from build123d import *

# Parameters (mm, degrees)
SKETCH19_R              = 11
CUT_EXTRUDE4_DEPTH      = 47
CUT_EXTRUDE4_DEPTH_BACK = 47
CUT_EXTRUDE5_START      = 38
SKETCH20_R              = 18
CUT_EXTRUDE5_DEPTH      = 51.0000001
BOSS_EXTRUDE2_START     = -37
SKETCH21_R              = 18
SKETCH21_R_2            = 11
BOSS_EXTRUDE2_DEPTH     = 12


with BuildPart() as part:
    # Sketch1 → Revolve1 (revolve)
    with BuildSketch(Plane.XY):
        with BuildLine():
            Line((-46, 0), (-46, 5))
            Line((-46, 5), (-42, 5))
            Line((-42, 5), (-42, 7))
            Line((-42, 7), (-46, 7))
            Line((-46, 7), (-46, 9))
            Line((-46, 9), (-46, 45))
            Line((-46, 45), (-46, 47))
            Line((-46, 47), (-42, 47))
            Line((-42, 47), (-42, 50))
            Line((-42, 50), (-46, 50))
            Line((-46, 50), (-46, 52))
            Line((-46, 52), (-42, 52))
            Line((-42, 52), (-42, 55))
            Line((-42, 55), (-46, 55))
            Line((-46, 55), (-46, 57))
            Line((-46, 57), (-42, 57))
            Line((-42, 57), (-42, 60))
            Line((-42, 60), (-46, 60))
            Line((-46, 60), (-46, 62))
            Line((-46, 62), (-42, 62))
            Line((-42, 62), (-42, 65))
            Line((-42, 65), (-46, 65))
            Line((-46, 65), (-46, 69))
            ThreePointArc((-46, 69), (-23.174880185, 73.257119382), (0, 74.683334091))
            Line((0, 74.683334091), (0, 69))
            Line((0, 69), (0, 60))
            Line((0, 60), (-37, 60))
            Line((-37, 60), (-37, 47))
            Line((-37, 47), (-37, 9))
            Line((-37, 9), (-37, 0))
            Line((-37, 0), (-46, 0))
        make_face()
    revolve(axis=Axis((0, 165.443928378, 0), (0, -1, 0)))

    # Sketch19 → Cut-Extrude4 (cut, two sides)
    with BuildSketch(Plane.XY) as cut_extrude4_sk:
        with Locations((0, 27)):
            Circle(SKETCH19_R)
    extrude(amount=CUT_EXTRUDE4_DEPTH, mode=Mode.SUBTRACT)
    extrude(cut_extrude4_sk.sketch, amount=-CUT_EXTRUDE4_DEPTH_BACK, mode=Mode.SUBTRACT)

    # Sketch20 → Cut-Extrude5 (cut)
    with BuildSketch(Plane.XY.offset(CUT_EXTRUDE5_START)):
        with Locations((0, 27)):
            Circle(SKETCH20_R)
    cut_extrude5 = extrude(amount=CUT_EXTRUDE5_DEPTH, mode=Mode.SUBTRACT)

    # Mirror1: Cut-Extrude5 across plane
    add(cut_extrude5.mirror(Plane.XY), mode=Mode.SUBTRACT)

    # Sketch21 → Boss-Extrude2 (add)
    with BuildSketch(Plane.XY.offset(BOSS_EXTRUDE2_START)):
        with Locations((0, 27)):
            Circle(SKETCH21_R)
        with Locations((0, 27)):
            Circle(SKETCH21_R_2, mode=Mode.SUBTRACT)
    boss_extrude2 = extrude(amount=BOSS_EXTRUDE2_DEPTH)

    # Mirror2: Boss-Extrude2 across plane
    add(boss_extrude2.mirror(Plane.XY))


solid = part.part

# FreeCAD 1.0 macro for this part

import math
import FreeCAD as App
import Part
import Sketcher
from FreeCAD import Vector

doc = App.newDocument("Part")
body = doc.addObject("PartDesign::Body", "Body")

# Sketch on XY plane
sketch1 = doc.addObject("Sketcher::SketchObject", "Sketch")
body.addObject(sketch1)
sketch1.AttachmentSupport = (doc.XY_Plane, [""])
sketch1.MapMode = "FlatFace"
sketch1.addGeometry(Part.LineSegment(Vector(-46, 5, 0), Vector(-46, 0, 0)), False)
sketch1.addGeometry(Part.LineSegment(Vector(-46, 0, 0), Vector(-37, 0, 0)), False)
sketch1.addGeometry(Part.LineSegment(Vector(-37, 0, 0), Vector(-37, 60, 0)), False)
sketch1.addGeometry(Part.LineSegment(Vector(-37, 60, 0), Vector(0, 60, 0)), False)
sketch1.addGeometry(Part.LineSegment(Vector(0, 60, 0), Vector(0, 74.7, 0)), False)
sketch1.addGeometry(Part.ArcOfCircle(Part.Circle(Vector(0, -114.3, 0), Vector(0, 0, 1), 189), math.radians(90), math.radians(104.09)), False)
sketch1.addGeometry(Part.LineSegment(Vector(-46, 69, 0), Vector(-46, 65, 0)), False)
sketch1.addGeometry(Part.LineSegment(Vector(-46, 65, 0), Vector(-42, 65, 0)), False)
sketch1.addGeometry(Part.LineSegment(Vector(-42, 65, 0), Vector(-42, 62, 0)), False)
sketch1.addGeometry(Part.LineSegment(Vector(-42, 62, 0), Vector(-46, 62, 0)), False)
sketch1.addGeometry(Part.LineSegment(Vector(-46, 62, 0), Vector(-46, 60, 0)), False)
sketch1.addGeometry(Part.LineSegment(Vector(-46, 60, 0), Vector(-42, 60, 0)), False)
sketch1.addGeometry(Part.LineSegment(Vector(-42, 60, 0), Vector(-42, 57, 0)), False)
sketch1.addGeometry(Part.LineSegment(Vector(-42, 57, 0), Vector(-46, 57, 0)), False)
sketch1.addGeometry(Part.LineSegment(Vector(-46, 57, 0), Vector(-46, 55, 0)), False)
sketch1.addGeometry(Part.LineSegment(Vector(-46, 55, 0), Vector(-42, 55, 0)), False)
sketch1.addGeometry(Part.LineSegment(Vector(-42, 55, 0), Vector(-42, 52, 0)), False)
sketch1.addGeometry(Part.LineSegment(Vector(-42, 52, 0), Vector(-46, 52, 0)), False)
sketch1.addGeometry(Part.LineSegment(Vector(-46, 52, 0), Vector(-46, 50, 0)), False)
sketch1.addGeometry(Part.LineSegment(Vector(-46, 50, 0), Vector(-42, 50, 0)), False)
sketch1.addGeometry(Part.LineSegment(Vector(-42, 50, 0), Vector(-42, 47, 0)), False)
sketch1.addGeometry(Part.LineSegment(Vector(-42, 47, 0), Vector(-46, 47, 0)), False)
sketch1.addGeometry(Part.LineSegment(Vector(-46, 47, 0), Vector(-46, 7, 0)), False)
sketch1.addGeometry(Part.LineSegment(Vector(-46, 7, 0), Vector(-42, 7, 0)), False)
sketch1.addGeometry(Part.LineSegment(Vector(-42, 7, 0), Vector(-42, 5, 0)), False)
sketch1.addGeometry(Part.LineSegment(Vector(-42, 5, 0), Vector(-46, 5, 0)), False)
sketch1.addConstraint(Sketcher.Constraint("Coincident", 0, 2, 1, 1))
sketch1.addConstraint(Sketcher.Constraint("Coincident", 1, 2, 2, 1))
sketch1.addConstraint(Sketcher.Constraint("Coincident", 2, 2, 3, 1))
sketch1.addConstraint(Sketcher.Constraint("Coincident", 3, 2, 4, 1))
sketch1.addConstraint(Sketcher.Constraint("Coincident", 4, 2, 5, 1))
sketch1.addConstraint(Sketcher.Constraint("Coincident", 5, 2, 6, 1))
sketch1.addConstraint(Sketcher.Constraint("Coincident", 6, 2, 7, 1))
sketch1.addConstraint(Sketcher.Constraint("Coincident", 7, 2, 8, 1))
sketch1.addConstraint(Sketcher.Constraint("Coincident", 8, 2, 9, 1))
sketch1.addConstraint(Sketcher.Constraint("Coincident", 9, 2, 10, 1))
sketch1.addConstraint(Sketcher.Constraint("Coincident", 10, 2, 11, 1))
sketch1.addConstraint(Sketcher.Constraint("Coincident", 11, 2, 12, 1))
sketch1.addConstraint(Sketcher.Constraint("Coincident", 12, 2, 13, 1))
sketch1.addConstraint(Sketcher.Constraint("Coincident", 13, 2, 14, 1))
sketch1.addConstraint(Sketcher.Constraint("Coincident", 14, 2, 15, 1))
sketch1.addConstraint(Sketcher.Constraint("Coincident", 15, 2, 16, 1))
sketch1.addConstraint(Sketcher.Constraint("Coincident", 16, 2, 17, 1))
sketch1.addConstraint(Sketcher.Constraint("Coincident", 17, 2, 18, 1))
sketch1.addConstraint(Sketcher.Constraint("Coincident", 18, 2, 19, 1))
sketch1.addConstraint(Sketcher.Constraint("Coincident", 19, 2, 20, 1))
sketch1.addConstraint(Sketcher.Constraint("Coincident", 20, 2, 21, 1))
sketch1.addConstraint(Sketcher.Constraint("Coincident", 21, 2, 22, 1))
sketch1.addConstraint(Sketcher.Constraint("Coincident", 22, 2, 23, 1))
sketch1.addConstraint(Sketcher.Constraint("Coincident", 23, 2, 24, 1))
sketch1.addConstraint(Sketcher.Constraint("Coincident", 24, 2, 25, 1))
sketch1.addConstraint(Sketcher.Constraint("Coincident", 25, 2, 0, 1))
sketch1.addConstraint(Sketcher.Constraint("Vertical", 0))
sketch1.addConstraint(Sketcher.Constraint("Horizontal", 1))
sketch1.addConstraint(Sketcher.Constraint("Vertical", 2))
sketch1.addConstraint(Sketcher.Constraint("Horizontal", 3))
sketch1.addConstraint(Sketcher.Constraint("Vertical", 4))
sketch1.addConstraint(Sketcher.Constraint("Vertical", 6))
sketch1.addConstraint(Sketcher.Constraint("Horizontal", 7))
sketch1.addConstraint(Sketcher.Constraint("Vertical", 8))
sketch1.addConstraint(Sketcher.Constraint("Horizontal", 9))
sketch1.addConstraint(Sketcher.Constraint("Vertical", 10))
sketch1.addConstraint(Sketcher.Constraint("Horizontal", 11))
sketch1.addConstraint(Sketcher.Constraint("Vertical", 12))
sketch1.addConstraint(Sketcher.Constraint("Horizontal", 13))
sketch1.addConstraint(Sketcher.Constraint("Vertical", 14))
sketch1.addConstraint(Sketcher.Constraint("Horizontal", 15))
sketch1.addConstraint(Sketcher.Constraint("Vertical", 16))
sketch1.addConstraint(Sketcher.Constraint("Horizontal", 17))
sketch1.addConstraint(Sketcher.Constraint("Vertical", 18))
sketch1.addConstraint(Sketcher.Constraint("Horizontal", 19))
sketch1.addConstraint(Sketcher.Constraint("Vertical", 20))
sketch1.addConstraint(Sketcher.Constraint("Horizontal", 21))
sketch1.addConstraint(Sketcher.Constraint("Vertical", 22))
sketch1.addConstraint(Sketcher.Constraint("Horizontal", 23))
sketch1.addConstraint(Sketcher.Constraint("Vertical", 24))
sketch1.addConstraint(Sketcher.Constraint("Horizontal", 25))
sketch1.addConstraint(Sketcher.Constraint("PointOnObject", 5, 3, -2))
sketch1.addConstraint(Sketcher.Constraint("PointOnObject", 0, 2, -1))
sketch1.addConstraint(Sketcher.Constraint("PointOnObject", 3, 2, -2))
sketch1.addConstraint(Sketcher.Constraint("Horizontal", 3, 2, 10, 2))
sketch1.addConstraint(Sketcher.Constraint("Vertical", 0, 2, 5, 2))
sketch1.addConstraint(Sketcher.Constraint("Vertical", 6, 2, 9, 2))
sketch1.addConstraint(Sketcher.Constraint("Vertical", 8, 2, 11, 2))
sketch1.addConstraint(Sketcher.Constraint("Vertical", 10, 2, 13, 2))
sketch1.addConstraint(Sketcher.Constraint("Vertical", 12, 2, 15, 2))
sketch1.addConstraint(Sketcher.Constraint("Vertical", 14, 2, 17, 2))
sketch1.addConstraint(Sketcher.Constraint("Vertical", 16, 2, 19, 2))
sketch1.addConstraint(Sketcher.Constraint("Vertical", 18, 2, 21, 2))
sketch1.addConstraint(Sketcher.Constraint("Vertical", 20, 2, 23, 2))
sketch1.addConstraint(Sketcher.Constraint("Equal", 25, 6))
sketch1.addConstraint(Sketcher.Constraint("Equal", 8, 12))
sketch1.addConstraint(Sketcher.Constraint("Equal", 10, 14))
sketch1.addConstraint(Sketcher.Constraint("Equal", 12, 16))
sketch1.addConstraint(Sketcher.Constraint("Equal", 14, 18))
sketch1.addConstraint(Sketcher.Constraint("Equal", 16, 20))
sketch1.addConstraint(Sketcher.Constraint("Equal", 18, 24))
sketch1.addConstraint(Sketcher.Constraint("Radius", 5, 189.0))
sketch1.addConstraint(Sketcher.Constraint("DistanceX", 1, 1, 1, 2, 9.0))
sketch1.addConstraint(Sketcher.Constraint("DistanceX", 3, 1, 3, 2, 37.0))
sketch1.addConstraint(Sketcher.Constraint("DistanceX", 7, 1, 7, 2, 4.0))
sketch1.addConstraint(Sketcher.Constraint("DistanceY", 0, 2, 0, 1, 5.0))
sketch1.addConstraint(Sketcher.Constraint("DistanceY", 2, 1, 2, 2, 60.0))
sketch1.addConstraint(Sketcher.Constraint("DistanceY", 8, 2, 8, 1, 3.0))
sketch1.addConstraint(Sketcher.Constraint("DistanceY", 10, 2, 10, 1, 2.0))
revolution = doc.addObject("PartDesign::Revolution", "Revolution")
body.addObject(revolution)
revolution.Profile = sketch1
revolution.ReferenceAxis = (sketch1, ["V_Axis"])
revolution.Angle = 360

# Sketch on XY plane
sketch2 = doc.addObject("Sketcher::SketchObject", "Sketch001")
body.addObject(sketch2)
sketch2.AttachmentSupport = (doc.XY_Plane, [""])
sketch2.MapMode = "FlatFace"
sketch2.addGeometry(Part.Circle(Vector(0, 27, 0), Vector(0, 0, 1), 11), False)
sketch2.addConstraint(Sketcher.Constraint("PointOnObject", 0, 3, -2))
sketch2.addConstraint(Sketcher.Constraint("Diameter", 0, 22.0))
sketch2.addConstraint(Sketcher.Constraint("DistanceY", -1, 1, 0, 3, 27.0))
pocket1 = doc.addObject("PartDesign::Pocket", "Pocket")
body.addObject(pocket1)
pocket1.Profile = sketch2
pocket1.Type = "ThroughAll"
pocket1.Midplane = True

# Sketch on XY plane
sketch3 = doc.addObject("Sketcher::SketchObject", "Sketch002")
body.addObject(sketch3)
sketch3.AttachmentSupport = (doc.XY_Plane, [""])
sketch3.MapMode = "FlatFace"
sketch3.AttachmentOffset = App.Placement(Vector(0, 0, 38), App.Rotation())
sketch3.addGeometry(Part.Circle(Vector(0, 27, 0), Vector(0, 0, 1), 18), False)
sketch3.addConstraint(Sketcher.Constraint("PointOnObject", 0, 3, -2))
sketch3.addConstraint(Sketcher.Constraint("Diameter", 0, 36.0))
sketch3.addConstraint(Sketcher.Constraint("DistanceY", -1, 1, 0, 3, 27.0))
pocket2 = doc.addObject("PartDesign::Pocket", "Pocket001")
body.addObject(pocket2)
pocket2.Profile = sketch3
pocket2.Length = 51
pocket2.Reversed = True
doc.recompute()

mirrored = doc.addObject("PartDesign::Mirrored", "Mirrored")
body.addObject(mirrored)
mirrored.Originals = [pocket2]
mirrored.MirrorPlane = (doc.XY_Plane, [""])
body.Tip = mirrored

# Sketch on XY plane
sketch4 = doc.addObject("Sketcher::SketchObject", "Sketch003")
body.addObject(sketch4)
sketch4.AttachmentSupport = (doc.XY_Plane, [""])
sketch4.MapMode = "FlatFace"
sketch4.AttachmentOffset = App.Placement(Vector(0, 0, -37), App.Rotation())
sketch4.addGeometry(Part.Circle(Vector(0, 27, 0), Vector(0, 0, 1), 18), False)
sketch4.addGeometry(Part.Circle(Vector(0, 27, 0), Vector(0, 0, 1), 11), False)
sketch4.addConstraint(Sketcher.Constraint("Coincident", 1, 3, 0, 3))
sketch4.addConstraint(Sketcher.Constraint("PointOnObject", 0, 3, -2))
sketch4.addConstraint(Sketcher.Constraint("Diameter", 0, 36.0))
sketch4.addConstraint(Sketcher.Constraint("Diameter", 1, 22.0))
sketch4.addConstraint(Sketcher.Constraint("DistanceY", -1, 1, 0, 3, 27.0))
pad1 = doc.addObject("PartDesign::Pad", "Pad")
body.addObject(pad1)
pad1.Profile = sketch4
pad1.Length = 12
doc.recompute()

mirrored2 = doc.addObject("PartDesign::Mirrored", "Mirrored001")
body.addObject(mirrored2)
mirrored2.Originals = [pad1]
mirrored2.MirrorPlane = (doc.XY_Plane, [""])
body.Tip = mirrored2

doc.recompute()
